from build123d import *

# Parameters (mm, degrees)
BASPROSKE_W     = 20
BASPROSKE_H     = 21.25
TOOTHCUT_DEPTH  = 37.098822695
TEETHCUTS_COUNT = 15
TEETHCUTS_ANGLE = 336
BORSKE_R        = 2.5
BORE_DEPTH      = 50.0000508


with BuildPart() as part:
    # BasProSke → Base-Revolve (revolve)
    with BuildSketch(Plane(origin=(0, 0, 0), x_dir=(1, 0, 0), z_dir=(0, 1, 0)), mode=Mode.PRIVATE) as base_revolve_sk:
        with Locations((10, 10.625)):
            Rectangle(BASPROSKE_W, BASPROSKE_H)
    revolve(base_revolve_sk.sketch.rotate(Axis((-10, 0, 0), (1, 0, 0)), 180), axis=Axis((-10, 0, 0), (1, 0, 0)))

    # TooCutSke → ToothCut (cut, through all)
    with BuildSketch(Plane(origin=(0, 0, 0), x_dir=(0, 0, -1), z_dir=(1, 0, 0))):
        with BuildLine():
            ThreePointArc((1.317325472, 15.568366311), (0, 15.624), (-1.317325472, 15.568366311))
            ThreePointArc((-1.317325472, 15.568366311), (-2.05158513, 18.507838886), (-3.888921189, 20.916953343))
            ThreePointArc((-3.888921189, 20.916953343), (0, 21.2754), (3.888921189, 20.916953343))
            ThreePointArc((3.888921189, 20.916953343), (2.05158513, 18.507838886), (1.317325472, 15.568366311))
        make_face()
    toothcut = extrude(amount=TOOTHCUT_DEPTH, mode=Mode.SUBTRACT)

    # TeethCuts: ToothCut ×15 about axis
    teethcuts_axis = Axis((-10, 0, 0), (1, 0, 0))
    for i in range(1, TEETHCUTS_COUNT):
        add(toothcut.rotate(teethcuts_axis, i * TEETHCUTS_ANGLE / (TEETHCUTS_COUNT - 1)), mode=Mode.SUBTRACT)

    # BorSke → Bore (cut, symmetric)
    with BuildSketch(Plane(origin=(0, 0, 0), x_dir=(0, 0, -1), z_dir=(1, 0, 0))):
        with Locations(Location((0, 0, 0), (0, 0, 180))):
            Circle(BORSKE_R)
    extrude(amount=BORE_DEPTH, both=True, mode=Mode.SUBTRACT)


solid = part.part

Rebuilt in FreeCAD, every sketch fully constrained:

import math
import FreeCAD as App
import Part
import Sketcher

V = App.Vector
Q = App.Units.Quantity

doc = App.newDocument("Part")
params = doc.addObject("Spreadsheet::Sheet", "Params")
for row, (alias, value) in enumerate([
    ("sketch1_width", "20 mm"),
    ("sketch1_height", "21.25 mm"),
    ("revolution_angle", "360 deg"),
    ("sketch2_radius", "7.5 mm"),
    ("sketch3_diameter", "5 mm"),
    ("pocket2_length", "100.000102 mm"),
], start=1):
    params.set(f"A{row}", alias)
    params.set(f"B{row}", "=" + value)
    params.setAlias(f"B{row}", alias)

body = doc.addObject("PartDesign::Body", "Body")

# Sketch on XZ plane
sketch1 = body.newObject("Sketcher::SketchObject", "Sketch")
sketch1.AttachmentSupport = (doc.getObject("XZ_Plane"), [""])
sketch1.MapMode = "FlatFace"
sketch1.addGeometry([
    Part.LineSegment(V(0, -21, 0), V(0, 0, 0)),
    Part.LineSegment(V(0, 0, 0), V(20, 0, 0)),
    Part.LineSegment(V(20, 0, 0), V(20, -21, 0)),
    Part.LineSegment(V(20, -21, 0), V(0, -21, 0)),
], False)
sketch1.addConstraint([
    Sketcher.Constraint("Coincident", 0, 2, 1, 1),
    Sketcher.Constraint("Coincident", 1, 2, 2, 1),
    Sketcher.Constraint("Coincident", 2, 2, 3, 1),
    Sketcher.Constraint("Coincident", 3, 2, 0, 1),
    Sketcher.Constraint("Vertical", 0),
    Sketcher.Constraint("Horizontal", 1),
    Sketcher.Constraint("Vertical", 2),
    Sketcher.Constraint("Horizontal", 3),
    Sketcher.Constraint("Coincident", 0, 2, -1, 1),
    Sketcher.Constraint("DistanceX", 1, 1, 1, 2, Q("20 mm")),
    Sketcher.Constraint("DistanceY", 0, 1, 0, 2, Q("21.25 mm")),
])
sketch1.setExpression("Constraints[9]", "Params.sketch1_width")
sketch1.setExpression("Constraints[10]", "Params.sketch1_height")
revolution = body.newObject("PartDesign::Revolution", "Revolution")
revolution.Profile = sketch1
revolution.ReferenceAxis = (sketch1, ["H_Axis"])
revolution.setExpression("Angle", "Params.revolution_angle")

# Sketch on YZ plane
sketch2 = body.newObject("Sketcher::SketchObject", "Sketch001")
sketch2.AttachmentSupport = (doc.getObject("YZ_Plane"), [""])
sketch2.MapMode = "FlatFace"
sketch2.addGeometry([
    Part.ArcOfCircle(Part.Circle(V(0, 0, 0), V(0, 0, 1), 15.6), math.radians(-4.84), math.radians(4.84)),
    Part.ArcOfCircle(Part.Circle(V(15.3, -8.8, 0), V(0, 0, 1), 7.5), math.radians(41), math.radians(88)),
    Part.ArcOfCircle(Part.Circle(V(0, 0, 0), V(0, 0, 1), 21.3), math.radians(-11), math.radians(11)),
    Part.ArcOfCircle(Part.Circle(V(15.3, 8.8, 0), V(0, 0, 1), 7.5), math.radians(-88), math.radians(-41)),
], False)
sketch2.addConstraint([
    Sketcher.Constraint("Coincident", 0, 1, 1, 2),
    Sketcher.Constraint("Coincident", 1, 1, 2, 1),
    Sketcher.Constraint("Coincident", 2, 2, 3, 2),
    Sketcher.Constraint("Coincident", 3, 1, 0, 2),
    Sketcher.Constraint("Coincident", 0, 3, -1, 1),
    Sketcher.Constraint("Coincident", 2, 3, -1, 1),
    Sketcher.Constraint("Equal", 1, 3),
    Sketcher.Constraint("Symmetric", 1, 3, 3, 3, -1),
    Sketcher.Constraint("Radius", 1, Q("7.5 mm")),
    Sketcher.Constraint("Radius", 0, Q("15.624 mm")),
    Sketcher.Constraint("Radius", 2, Q("21.2754 mm")),
    Sketcher.Constraint("DistanceY", 1, 3, -1, 1, Q("8.8109 mm")),
    Sketcher.Constraint("DistanceX", 1, 3, 0, 1, Q("0.3104 mm")),
])
sketch2.setExpression("Constraints[8]", "Params.sketch2_radius")
pocket1 = body.newObject("PartDesign::Pocket", "Pocket")
pocket1.Profile = sketch2
pocket1.Type = "ThroughAll"
pocket1.Reversed = True
doc.recompute()

polarpattern = body.newObject("PartDesign::PolarPattern", "PolarPattern")
polarpattern.Originals = [pocket1]
polarpattern.Axis = (doc.getObject("X_Axis"), [""])
polarpattern.Angle = 360
polarpattern.Occurrences = 15
body.Tip = polarpattern

# Sketch on YZ plane
sketch3 = body.newObject("Sketcher::SketchObject", "Sketch002")
sketch3.AttachmentSupport = (doc.getObject("YZ_Plane"), [""])
sketch3.MapMode = "FlatFace"
sketch3.addGeometry(Part.Circle(V(0, 0, 0), V(0, 0, 1), 2.5), False)
sketch3.addConstraint([
    Sketcher.Constraint("Coincident", 0, 3, -1, 1),
    Sketcher.Constraint("Diameter", 0, Q("5 mm")),
])
sketch3.setExpression("Constraints[1]", "Params.sketch3_diameter")
pocket2 = body.newObject("PartDesign::Pocket", "Pocket001")
pocket2.Profile = sketch3
pocket2.setExpression("Length", "Params.pocket2_length")
pocket2.Midplane = True

doc.recompute()
